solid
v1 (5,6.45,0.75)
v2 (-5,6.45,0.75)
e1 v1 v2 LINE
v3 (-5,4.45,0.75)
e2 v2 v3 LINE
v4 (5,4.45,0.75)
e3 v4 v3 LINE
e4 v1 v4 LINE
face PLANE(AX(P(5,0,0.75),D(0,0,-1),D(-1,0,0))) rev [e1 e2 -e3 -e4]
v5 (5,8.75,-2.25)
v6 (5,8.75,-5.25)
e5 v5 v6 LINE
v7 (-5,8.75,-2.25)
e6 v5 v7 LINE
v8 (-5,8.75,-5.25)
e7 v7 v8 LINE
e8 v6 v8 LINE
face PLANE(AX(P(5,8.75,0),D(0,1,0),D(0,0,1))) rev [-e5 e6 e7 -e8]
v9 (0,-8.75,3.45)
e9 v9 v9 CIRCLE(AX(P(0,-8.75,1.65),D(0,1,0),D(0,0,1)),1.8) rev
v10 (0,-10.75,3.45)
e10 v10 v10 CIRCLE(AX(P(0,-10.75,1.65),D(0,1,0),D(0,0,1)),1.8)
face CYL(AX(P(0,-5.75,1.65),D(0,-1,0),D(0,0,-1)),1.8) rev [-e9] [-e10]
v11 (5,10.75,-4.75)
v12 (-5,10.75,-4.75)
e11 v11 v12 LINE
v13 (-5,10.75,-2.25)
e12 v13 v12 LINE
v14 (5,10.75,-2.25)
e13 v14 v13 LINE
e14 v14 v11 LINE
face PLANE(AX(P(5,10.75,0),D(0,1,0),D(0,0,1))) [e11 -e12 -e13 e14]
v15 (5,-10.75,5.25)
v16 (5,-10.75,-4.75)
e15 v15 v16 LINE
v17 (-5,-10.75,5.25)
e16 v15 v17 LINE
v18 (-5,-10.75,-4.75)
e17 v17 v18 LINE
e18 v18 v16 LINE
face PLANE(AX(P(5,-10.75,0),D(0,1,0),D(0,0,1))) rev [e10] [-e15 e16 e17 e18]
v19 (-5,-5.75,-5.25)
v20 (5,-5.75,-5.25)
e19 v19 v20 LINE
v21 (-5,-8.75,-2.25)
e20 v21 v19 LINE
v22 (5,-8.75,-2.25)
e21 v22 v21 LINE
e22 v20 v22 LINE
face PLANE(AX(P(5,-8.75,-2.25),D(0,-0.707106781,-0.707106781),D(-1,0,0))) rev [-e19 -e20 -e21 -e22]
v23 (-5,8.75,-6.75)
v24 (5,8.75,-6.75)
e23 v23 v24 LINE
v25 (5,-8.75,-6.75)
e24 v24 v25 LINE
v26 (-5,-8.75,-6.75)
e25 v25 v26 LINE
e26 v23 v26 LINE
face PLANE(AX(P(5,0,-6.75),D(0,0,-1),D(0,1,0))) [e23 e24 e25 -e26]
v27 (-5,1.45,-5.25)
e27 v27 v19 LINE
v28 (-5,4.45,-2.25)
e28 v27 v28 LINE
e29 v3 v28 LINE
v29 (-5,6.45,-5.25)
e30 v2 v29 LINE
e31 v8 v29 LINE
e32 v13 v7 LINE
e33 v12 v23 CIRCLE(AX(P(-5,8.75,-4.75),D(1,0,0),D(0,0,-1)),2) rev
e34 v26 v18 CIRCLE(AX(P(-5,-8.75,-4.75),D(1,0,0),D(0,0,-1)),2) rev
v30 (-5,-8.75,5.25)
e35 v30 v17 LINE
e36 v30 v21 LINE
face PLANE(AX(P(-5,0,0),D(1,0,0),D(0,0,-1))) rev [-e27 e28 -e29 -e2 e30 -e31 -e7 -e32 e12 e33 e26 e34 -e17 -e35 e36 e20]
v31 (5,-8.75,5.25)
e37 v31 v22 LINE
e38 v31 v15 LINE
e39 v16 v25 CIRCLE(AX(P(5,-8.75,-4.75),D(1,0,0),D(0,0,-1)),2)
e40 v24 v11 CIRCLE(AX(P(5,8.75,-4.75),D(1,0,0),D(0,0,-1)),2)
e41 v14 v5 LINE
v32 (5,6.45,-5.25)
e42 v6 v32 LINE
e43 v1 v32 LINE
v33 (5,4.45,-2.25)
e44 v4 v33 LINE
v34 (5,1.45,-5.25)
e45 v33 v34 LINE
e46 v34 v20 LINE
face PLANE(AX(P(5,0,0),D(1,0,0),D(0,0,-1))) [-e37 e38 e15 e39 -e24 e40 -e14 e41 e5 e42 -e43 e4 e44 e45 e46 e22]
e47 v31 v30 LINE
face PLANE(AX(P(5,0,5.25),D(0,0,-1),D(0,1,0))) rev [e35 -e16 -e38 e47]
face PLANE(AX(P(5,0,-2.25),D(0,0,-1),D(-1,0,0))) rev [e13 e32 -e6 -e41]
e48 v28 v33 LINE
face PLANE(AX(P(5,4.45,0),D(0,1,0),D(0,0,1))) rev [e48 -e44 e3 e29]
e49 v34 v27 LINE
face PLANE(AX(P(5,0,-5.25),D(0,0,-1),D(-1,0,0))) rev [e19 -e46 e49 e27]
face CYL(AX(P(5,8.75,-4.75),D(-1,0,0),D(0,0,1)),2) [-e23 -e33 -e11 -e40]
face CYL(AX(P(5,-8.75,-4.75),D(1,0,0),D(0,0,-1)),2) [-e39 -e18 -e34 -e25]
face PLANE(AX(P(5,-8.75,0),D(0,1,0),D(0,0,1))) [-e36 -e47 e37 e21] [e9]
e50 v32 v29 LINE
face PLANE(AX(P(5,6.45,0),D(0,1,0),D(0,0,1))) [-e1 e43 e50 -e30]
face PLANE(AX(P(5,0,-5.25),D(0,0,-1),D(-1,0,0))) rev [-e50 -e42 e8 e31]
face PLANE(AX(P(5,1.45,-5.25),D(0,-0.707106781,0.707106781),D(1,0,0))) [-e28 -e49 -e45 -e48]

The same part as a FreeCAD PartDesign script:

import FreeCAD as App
import Part
import Sketcher
from FreeCAD import Vector


def edges_at(feature, points):
    """Names of the edges that pass closest to the given points."""
    edges = feature.Shape.Edges
    near = lambda p: min(range(len(edges)), key=lambda i: edges[i].distToShape(Part.Vertex(*p))[0])
    return sorted({f"Edge{near(p) + 1}" for p in points})

doc = App.newDocument("Part")
body = doc.addObject("PartDesign::Body", "Body")

# Sketch on YZ plane
sketch1 = body.newObject("Sketcher::SketchObject", "Sketch")
sketch1.AttachmentSupport = (doc.getObject("YZ_Plane"), [""])
sketch1.MapMode = "FlatFace"
sketch1.addGeometry([
    Part.LineSegment(Vector(-8.8, 5.2, 0), Vector(-10.8, 5.2, 0)),  # 0
    Part.LineSegment(Vector(-10.8, 5.2, 0), Vector(-10.8, -6.8, 0)),  # 1
    Part.LineSegment(Vector(-10.8, -6.8, 0), Vector(10.8, -6.8, 0)),  # 2
    Part.LineSegment(Vector(10.8, -6.8, 0), Vector(10.8, -2.2, 0)),  # 3
    Part.LineSegment(Vector(10.8, -2.2, 0), Vector(8.8, -2.2, 0)),  # 4
    Part.LineSegment(Vector(8.8, -2.2, 0), Vector(8.8, -5.2, 0)),  # 5
    Part.LineSegment(Vector(8.8, -5.2, 0), Vector(6.5, -5.2, 0)),  # 6
    Part.LineSegment(Vector(6.5, -5.2, 0), Vector(6.5, 0.8, 0)),  # 7
    Part.LineSegment(Vector(6.5, 0.8, 0), Vector(4.5, 0.8, 0)),  # 8
    Part.LineSegment(Vector(4.5, 0.8, 0), Vector(4.5, -5.2, 0)),  # 9
    Part.LineSegment(Vector(4.5, -5.2, 0), Vector(-8.8, -5.2, 0)),  # 10
    Part.LineSegment(Vector(-8.8, -5.2, 0), Vector(-8.8, 5.2, 0)),  # 11
], False)
sketch1.addConstraint([
    Sketcher.Constraint("Coincident", 0, 2, 1, 1),
    Sketcher.Constraint("Coincident", 1, 2, 2, 1),
    Sketcher.Constraint("Coincident", 2, 2, 3, 1),
    Sketcher.Constraint("Coincident", 3, 2, 4, 1),
    Sketcher.Constraint("Coincident", 4, 2, 5, 1),
    Sketcher.Constraint("Coincident", 5, 2, 6, 1),
    Sketcher.Constraint("Coincident", 6, 2, 7, 1),
    Sketcher.Constraint("Coincident", 7, 2, 8, 1),
    Sketcher.Constraint("Coincident", 8, 2, 9, 1),
    Sketcher.Constraint("Coincident", 9, 2, 10, 1),
    Sketcher.Constraint("Coincident", 10, 2, 11, 1),
    Sketcher.Constraint("Coincident", 11, 2, 0, 1),
    Sketcher.Constraint("Horizontal", 0),
    Sketcher.Constraint("Vertical", 1),
    Sketcher.Constraint("Horizontal", 2),
    Sketcher.Constraint("Vertical", 3),
    Sketcher.Constraint("Horizontal", 4),
    Sketcher.Constraint("Vertical", 5),
    Sketcher.Constraint("Horizontal", 6),
    Sketcher.Constraint("Vertical", 7),
    Sketcher.Constraint("Horizontal", 8),
    Sketcher.Constraint("Vertical", 9),
    Sketcher.Constraint("Horizontal", 10),
    Sketcher.Constraint("Vertical", 11),
    Sketcher.Constraint("Symmetric", 5, 2, 11, 2, -1, 1),
    Sketcher.Constraint("Horizontal", 6, 2, 9, 2),
    Sketcher.Constraint("Equal", 0, 4),
    Sketcher.Constraint("Equal", 4, 8),
    Sketcher.Constraint("DistanceX", 0, 2, 0, 1, 2.0),
    Sketcher.Constraint("DistanceY", 1, 2, 1, 1, 12.0),
    Sketcher.Constraint("DistanceY", 5, 2, 5, 1, 3.0),
    Sketcher.Constraint("DistanceY", 7, 1, 7, 2, 6.0),
    Sketcher.Constraint("DistanceX", 2, 1, 2, 2, 21.5),
    Sketcher.Constraint("DistanceX", 6, 2, 6, 1, 2.3),
    Sketcher.Constraint("DistanceY", 3, 1, 3, 2, 4.5),
])
pad1 = body.newObject("PartDesign::Pad", "Pad")
pad1.Profile = sketch1
pad1.Length = 10
pad1.Midplane = True
doc.recompute()

chamfer = body.newObject("PartDesign::Chamfer", "Chamfer")
chamfer.Base = (pad1, edges_at(pad1, [(0, -8.75, -5.25), (0, 4.45, -5.25)]))
chamfer.Size = 3

# Sketch on XZ plane
sketch2 = body.newObject("Sketcher::SketchObject", "Sketch001")
sketch2.AttachmentSupport = (doc.getObject("XZ_Plane"), [""])
sketch2.MapMode = "FlatFace"
sketch2.AttachmentOffset = App.Placement(Vector(0, 0, 8.75), App.Rotation())
sketch2.addGeometry(Part.Circle(Vector(0, 1.6, 0), Vector(0, 0, 1), 1.8), False)
sketch2.addConstraint([
    Sketcher.Constraint("PointOnObject", 0, 3, -2),
    Sketcher.Constraint("Diameter", 0, 3.6),
    Sketcher.Constraint("DistanceY", -1, 1, 0, 3, 1.65),
])
pocket1 = body.newObject("PartDesign::Pocket", "Pocket")
pocket1.Profile = sketch2
pocket1.Type = "TwoLengths"
pocket1.Length = 3
pocket1.Length2 = 3
doc.recompute()

fillet = body.newObject("PartDesign::Fillet", "Fillet")
fillet.Base = (pocket1, edges_at(pocket1, [(0, 10.75, -6.75), (0, -10.75, -6.75)]))
fillet.Radius = 2

doc.recompute()
